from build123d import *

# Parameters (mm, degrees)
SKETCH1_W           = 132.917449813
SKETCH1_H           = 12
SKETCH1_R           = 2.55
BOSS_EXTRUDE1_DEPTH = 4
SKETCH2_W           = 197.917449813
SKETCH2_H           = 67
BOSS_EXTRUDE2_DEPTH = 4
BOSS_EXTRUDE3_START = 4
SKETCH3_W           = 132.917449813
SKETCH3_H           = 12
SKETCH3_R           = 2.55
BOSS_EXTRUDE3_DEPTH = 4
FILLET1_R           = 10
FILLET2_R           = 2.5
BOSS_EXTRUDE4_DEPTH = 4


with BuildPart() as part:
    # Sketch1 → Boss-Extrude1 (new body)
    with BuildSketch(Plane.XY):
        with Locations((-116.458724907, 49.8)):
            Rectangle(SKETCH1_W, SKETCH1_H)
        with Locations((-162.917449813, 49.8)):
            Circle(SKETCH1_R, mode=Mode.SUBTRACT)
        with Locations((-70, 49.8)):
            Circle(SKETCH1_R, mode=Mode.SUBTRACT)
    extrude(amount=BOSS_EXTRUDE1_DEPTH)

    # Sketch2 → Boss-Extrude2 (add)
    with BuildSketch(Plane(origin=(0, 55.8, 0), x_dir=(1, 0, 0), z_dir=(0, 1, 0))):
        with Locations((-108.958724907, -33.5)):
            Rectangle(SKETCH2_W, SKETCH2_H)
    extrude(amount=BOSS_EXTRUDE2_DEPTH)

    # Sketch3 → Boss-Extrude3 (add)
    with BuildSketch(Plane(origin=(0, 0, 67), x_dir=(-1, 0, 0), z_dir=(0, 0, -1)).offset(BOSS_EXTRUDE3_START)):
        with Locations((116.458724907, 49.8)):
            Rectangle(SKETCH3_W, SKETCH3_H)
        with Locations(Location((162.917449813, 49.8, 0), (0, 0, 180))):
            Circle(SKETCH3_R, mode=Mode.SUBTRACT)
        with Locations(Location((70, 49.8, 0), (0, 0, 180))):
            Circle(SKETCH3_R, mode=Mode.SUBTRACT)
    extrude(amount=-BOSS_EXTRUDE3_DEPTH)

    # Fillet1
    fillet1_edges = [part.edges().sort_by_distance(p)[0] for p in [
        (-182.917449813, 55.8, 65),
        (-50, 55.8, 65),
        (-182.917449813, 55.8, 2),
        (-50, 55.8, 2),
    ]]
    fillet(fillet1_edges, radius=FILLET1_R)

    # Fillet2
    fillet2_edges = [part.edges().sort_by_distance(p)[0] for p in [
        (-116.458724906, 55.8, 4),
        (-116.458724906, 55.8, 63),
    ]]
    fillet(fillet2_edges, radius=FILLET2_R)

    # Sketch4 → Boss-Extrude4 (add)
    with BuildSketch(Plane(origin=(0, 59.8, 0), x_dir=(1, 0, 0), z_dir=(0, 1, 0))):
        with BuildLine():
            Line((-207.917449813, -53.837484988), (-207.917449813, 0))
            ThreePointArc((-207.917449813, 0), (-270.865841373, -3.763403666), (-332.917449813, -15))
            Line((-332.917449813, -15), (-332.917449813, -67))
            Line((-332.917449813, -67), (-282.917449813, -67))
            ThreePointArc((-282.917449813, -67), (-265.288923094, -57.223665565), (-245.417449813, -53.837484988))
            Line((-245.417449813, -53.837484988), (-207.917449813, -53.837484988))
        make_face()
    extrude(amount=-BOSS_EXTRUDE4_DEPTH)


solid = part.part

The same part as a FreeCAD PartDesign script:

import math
import FreeCAD as App
import Part
import Sketcher
Q = App.Units.Quantity


def edges_at(feature, points):
    """Names of the edges that pass closest to the given points."""
    edges = feature.Shape.Edges
    near = lambda p: min(range(len(edges)), key=lambda i: edges[i].distToShape(Part.Vertex(*p))[0])
    return sorted({f"Edge{near(p) + 1}" for p in points})

doc = App.newDocument("Part")
body = doc.addObject("PartDesign::Body", "Body")

# Sketch on XY plane
sketch1 = body.newObject("Sketcher::SketchObject", "Sketch")
sketch1.AttachmentSupport = (doc.getObject("XY_Plane"), [""])
sketch1.MapMode = "FlatFace"
sketch1.addGeometry(Part.LineSegment(App.Vector(-182.9, 55.8, 0), App.Vector(-182.9, 43.8, 0)), False)
sketch1.addGeometry(Part.LineSegment(App.Vector(-182.9, 43.8, 0), App.Vector(-50, 43.8, 0)), False)
sketch1.addGeometry(Part.LineSegment(App.Vector(-50, 43.8, 0), App.Vector(-50, 55.8, 0)), False)
sketch1.addGeometry(Part.LineSegment(App.Vector(-50, 55.8, 0), App.Vector(-182.9, 55.8, 0)), False)
sketch1.addGeometry(Part.Circle(App.Vector(-162.9, 49.8, 0), App.Vector(0, 0, 1), 2.5), False)
sketch1.addGeometry(Part.Circle(App.Vector(-70, 49.8, 0), App.Vector(0, 0, 1), 2.5), False)
sketch1.addConstraint(Sketcher.Constraint("Coincident", 0, 2, 1, 1))
sketch1.addConstraint(Sketcher.Constraint("Coincident", 1, 2, 2, 1))
sketch1.addConstraint(Sketcher.Constraint("Coincident", 2, 2, 3, 1))
sketch1.addConstraint(Sketcher.Constraint("Coincident", 3, 2, 0, 1))
sketch1.addConstraint(Sketcher.Constraint("Vertical", 0))
sketch1.addConstraint(Sketcher.Constraint("Horizontal", 1))
sketch1.addConstraint(Sketcher.Constraint("Vertical", 2))
sketch1.addConstraint(Sketcher.Constraint("Horizontal", 3))
sketch1.addConstraint(Sketcher.Constraint("Equal", 4, 5))
sketch1.addConstraint(Sketcher.Constraint("Horizontal", 4, 3, 5, 3))
sketch1.addConstraint(Sketcher.Constraint("Diameter", 4, Q("5.1 mm")))
sketch1.addConstraint(Sketcher.Constraint("DistanceY", 0, 2, 0, 1, Q("12 mm")))
sketch1.addConstraint(Sketcher.Constraint("DistanceX", 5, 3, -1, 1, Q("70 mm")))
sketch1.addConstraint(Sketcher.Constraint("DistanceX", 1, 2, -1, 1, Q("50 mm")))
sketch1.addConstraint(Sketcher.Constraint("DistanceX", 0, 2, 4, 3, Q("20 mm")))
sketch1.addConstraint(Sketcher.Constraint("DistanceY", 0, 2, 4, 3, Q("6 mm")))
sketch1.addConstraint(Sketcher.Constraint("DistanceY", -1, 1, 4, 3, Q("49.8 mm")))
sketch1.addConstraint(Sketcher.Constraint("DistanceX", 1, 1, 1, 2, Q("132.91745 mm")))
pad1 = body.newObject("PartDesign::Pad", "Pad")
pad1.Profile = sketch1
pad1.Length = 4

# Sketch on XZ plane
sketch2 = body.newObject("Sketcher::SketchObject", "Sketch001")
sketch2.AttachmentSupport = (doc.getObject("XZ_Plane"), [""])
sketch2.MapMode = "FlatFace"
sketch2.AttachmentOffset = App.Placement(App.Vector(0, 0, -55.8), App.Rotation())
sketch2.addGeometry(Part.LineSegment(App.Vector(-208, 0, 0), App.Vector(-208, 67, 0)), False)
sketch2.addGeometry(Part.LineSegment(App.Vector(-208, 67, 0), App.Vector(-10, 67, 0)), False)
sketch2.addGeometry(Part.LineSegment(App.Vector(-10, 67, 0), App.Vector(-10, 0, 0)), False)
sketch2.addGeometry(Part.LineSegment(App.Vector(-10, 0, 0), App.Vector(-208, 0, 0)), False)
sketch2.addConstraint(Sketcher.Constraint("Coincident", 0, 2, 1, 1))
sketch2.addConstraint(Sketcher.Constraint("Coincident", 1, 2, 2, 1))
sketch2.addConstraint(Sketcher.Constraint("Coincident", 2, 2, 3, 1))
sketch2.addConstraint(Sketcher.Constraint("Coincident", 3, 2, 0, 1))
sketch2.addConstraint(Sketcher.Constraint("Vertical", 0))
sketch2.addConstraint(Sketcher.Constraint("Horizontal", 1))
sketch2.addConstraint(Sketcher.Constraint("Vertical", 2))
sketch2.addConstraint(Sketcher.Constraint("Horizontal", 3))
sketch2.addConstraint(Sketcher.Constraint("PointOnObject", 2, 2, -1))
sketch2.addConstraint(Sketcher.Constraint("DistanceY", 0, 1, 0, 2, Q("67 mm")))
sketch2.addConstraint(Sketcher.Constraint("DistanceX", 1, 2, -1, 1, Q("10 mm")))
sketch2.addConstraint(Sketcher.Constraint("DistanceX", 1, 1, 1, 2, Q("197.91745 mm")))
pad2 = body.newObject("PartDesign::Pad", "Pad001")
pad2.Profile = sketch2
pad2.Length = 4
pad2.Reversed = True

# Sketch on XY plane
sketch3 = body.newObject("Sketcher::SketchObject", "Sketch002")
sketch3.AttachmentSupport = (doc.getObject("XY_Plane"), [""])
sketch3.MapMode = "FlatFace"
sketch3.AttachmentOffset = App.Placement(App.Vector(0, 0, 63), App.Rotation())
sketch3.addGeometry(Part.LineSegment(App.Vector(-50, 55.8, 0), App.Vector(-50, 43.8, 0)), False)
sketch3.addGeometry(Part.LineSegment(App.Vector(-50, 43.8, 0), App.Vector(-182.9, 43.8, 0)), False)
sketch3.addGeometry(Part.LineSegment(App.Vector(-182.9, 43.8, 0), App.Vector(-182.9, 55.8, 0)), False)
sketch3.addGeometry(Part.LineSegment(App.Vector(-182.9, 55.8, 0), App.Vector(-50, 55.8, 0)), False)
sketch3.addGeometry(Part.Circle(App.Vector(-70, 49.8, 0), App.Vector(0, 0, 1), 2.5), False)
sketch3.addGeometry(Part.Circle(App.Vector(-162.9, 49.8, 0), App.Vector(0, 0, 1), 2.5), False)
sketch3.addConstraint(Sketcher.Constraint("Coincident", 0, 2, 1, 1))
sketch3.addConstraint(Sketcher.Constraint("Coincident", 1, 2, 2, 1))
sketch3.addConstraint(Sketcher.Constraint("Coincident", 2, 2, 3, 1))
sketch3.addConstraint(Sketcher.Constraint("Coincident", 3, 2, 0, 1))
sketch3.addConstraint(Sketcher.Constraint("Vertical", 0))
sketch3.addConstraint(Sketcher.Constraint("Horizontal", 1))
sketch3.addConstraint(Sketcher.Constraint("Vertical", 2))
sketch3.addConstraint(Sketcher.Constraint("Horizontal", 3))
sketch3.addConstraint(Sketcher.Constraint("Equal", 4, 5))
sketch3.addConstraint(Sketcher.Constraint("Horizontal", 4, 3, 5, 3))
sketch3.addConstraint(Sketcher.Constraint("Diameter", 4, Q("5.1 mm")))
sketch3.addConstraint(Sketcher.Constraint("DistanceY", 0, 2, 0, 1, Q("12 mm")))
sketch3.addConstraint(Sketcher.Constraint("DistanceX", 4, 3, -1, 1, Q("70 mm")))
sketch3.addConstraint(Sketcher.Constraint("DistanceX", 0, 2, -1, 1, Q("50 mm")))
sketch3.addConstraint(Sketcher.Constraint("DistanceY", 0, 2, 4, 3, Q("6 mm")))
sketch3.addConstraint(Sketcher.Constraint("DistanceX", 1, 2, 5, 3, Q("20 mm")))
sketch3.addConstraint(Sketcher.Constraint("DistanceY", -1, 1, 4, 3, Q("49.8 mm")))
sketch3.addConstraint(Sketcher.Constraint("DistanceX", 1, 2, 1, 1, Q("132.91745 mm")))
pad3 = body.newObject("PartDesign::Pad", "Pad002")
pad3.Profile = sketch3
pad3.Length = 4
doc.recompute()

fillet = body.newObject("PartDesign::Fillet", "Fillet")
fillet.Base = (pad3, edges_at(pad3, [
    (-182.917, 55.8, 65),
    (-50, 55.8, 65),
    (-182.917, 55.8, 2),
    (-50, 55.8, 2),
]))
fillet.Radius = 10
doc.recompute()

fillet2 = body.newObject("PartDesign::Fillet", "Fillet001")
fillet2.Base = (fillet, edges_at(fillet, [(-116.459, 55.8, 4), (-116.459, 55.8, 63)]))
fillet2.Radius = 2.5

# Sketch on XZ plane
sketch4 = body.newObject("Sketcher::SketchObject", "Sketch003")
sketch4.AttachmentSupport = (doc.getObject("XZ_Plane"), [""])
sketch4.MapMode = "FlatFace"
sketch4.AttachmentOffset = App.Placement(App.Vector(0, 0, -59.8), App.Rotation())
sketch4.addGeometry(Part.LineSegment(App.Vector(-208, 54, 0), App.Vector(-208, 0, 0)), False)
sketch4.addGeometry(Part.ArcOfCircle(Part.Circle(App.Vector(-208, 528, 0), App.Vector(0, 0, 1), 528), math.radians(-103.69), math.radians(-90)), False)
sketch4.addGeometry(Part.LineSegment(App.Vector(-333, 15, 0), App.Vector(-333, 67, 0)), False)
sketch4.addGeometry(Part.LineSegment(App.Vector(-333, 67, 0), App.Vector(-283, 67, 0)), False)
sketch4.addGeometry(Part.ArcOfCircle(Part.Circle(App.Vector(-245, 114, 0), App.Vector(0, 0, 1), 60), math.radians(-129), math.radians(-90)), False)
sketch4.addGeometry(Part.LineSegment(App.Vector(-245, 54, 0), App.Vector(-208, 54, 0)), False)
sketch4.addConstraint(Sketcher.Constraint("Coincident", 0, 2, 1, 2))
sketch4.addConstraint(Sketcher.Constraint("Coincident", 1, 1, 2, 1))
sketch4.addConstraint(Sketcher.Constraint("Coincident", 2, 2, 3, 1))
sketch4.addConstraint(Sketcher.Constraint("Coincident", 3, 2, 4, 1))
sketch4.addConstraint(Sketcher.Constraint("Tangent", 4, 2, 5, 1))
sketch4.addConstraint(Sketcher.Constraint("Coincident", 5, 2, 0, 1))
sketch4.addConstraint(Sketcher.Constraint("Vertical", 0))
sketch4.addConstraint(Sketcher.Constraint("Vertical", 2))
sketch4.addConstraint(Sketcher.Constraint("Horizontal", 3))
sketch4.addConstraint(Sketcher.Constraint("Horizontal", 5))
sketch4.addConstraint(Sketcher.Constraint("PointOnObject", 0, 2, -1))
sketch4.addConstraint(Sketcher.Constraint("Vertical", 1, 3, 0, 2))
sketch4.addConstraint(Sketcher.Constraint("Radius", 4, Q("60 mm")))
sketch4.addConstraint(Sketcher.Constraint("DistanceX", 3, 1, 3, 2, Q("50 mm")))
sketch4.addConstraint(Sketcher.Constraint("DistanceY", 2, 1, 2, 2, Q("52 mm")))
sketch4.addConstraint(Sketcher.Constraint("DistanceX", 5, 1, 5, 2, Q("37.5 mm")))
sketch4.addConstraint(Sketcher.Constraint("DistanceY", -1, 1, 2, 2, Q("67 mm")))
sketch4.addConstraint(Sketcher.Constraint("DistanceX", 2, 2, 0, 2, Q("125 mm")))
sketch4.addConstraint(Sketcher.Constraint("DistanceX", 1, 3, -1, 1, Q("207.91745 mm")))
pad4 = body.newObject("PartDesign::Pad", "Pad003")
pad4.Profile = sketch4
pad4.Length = 4

doc.recompute()
